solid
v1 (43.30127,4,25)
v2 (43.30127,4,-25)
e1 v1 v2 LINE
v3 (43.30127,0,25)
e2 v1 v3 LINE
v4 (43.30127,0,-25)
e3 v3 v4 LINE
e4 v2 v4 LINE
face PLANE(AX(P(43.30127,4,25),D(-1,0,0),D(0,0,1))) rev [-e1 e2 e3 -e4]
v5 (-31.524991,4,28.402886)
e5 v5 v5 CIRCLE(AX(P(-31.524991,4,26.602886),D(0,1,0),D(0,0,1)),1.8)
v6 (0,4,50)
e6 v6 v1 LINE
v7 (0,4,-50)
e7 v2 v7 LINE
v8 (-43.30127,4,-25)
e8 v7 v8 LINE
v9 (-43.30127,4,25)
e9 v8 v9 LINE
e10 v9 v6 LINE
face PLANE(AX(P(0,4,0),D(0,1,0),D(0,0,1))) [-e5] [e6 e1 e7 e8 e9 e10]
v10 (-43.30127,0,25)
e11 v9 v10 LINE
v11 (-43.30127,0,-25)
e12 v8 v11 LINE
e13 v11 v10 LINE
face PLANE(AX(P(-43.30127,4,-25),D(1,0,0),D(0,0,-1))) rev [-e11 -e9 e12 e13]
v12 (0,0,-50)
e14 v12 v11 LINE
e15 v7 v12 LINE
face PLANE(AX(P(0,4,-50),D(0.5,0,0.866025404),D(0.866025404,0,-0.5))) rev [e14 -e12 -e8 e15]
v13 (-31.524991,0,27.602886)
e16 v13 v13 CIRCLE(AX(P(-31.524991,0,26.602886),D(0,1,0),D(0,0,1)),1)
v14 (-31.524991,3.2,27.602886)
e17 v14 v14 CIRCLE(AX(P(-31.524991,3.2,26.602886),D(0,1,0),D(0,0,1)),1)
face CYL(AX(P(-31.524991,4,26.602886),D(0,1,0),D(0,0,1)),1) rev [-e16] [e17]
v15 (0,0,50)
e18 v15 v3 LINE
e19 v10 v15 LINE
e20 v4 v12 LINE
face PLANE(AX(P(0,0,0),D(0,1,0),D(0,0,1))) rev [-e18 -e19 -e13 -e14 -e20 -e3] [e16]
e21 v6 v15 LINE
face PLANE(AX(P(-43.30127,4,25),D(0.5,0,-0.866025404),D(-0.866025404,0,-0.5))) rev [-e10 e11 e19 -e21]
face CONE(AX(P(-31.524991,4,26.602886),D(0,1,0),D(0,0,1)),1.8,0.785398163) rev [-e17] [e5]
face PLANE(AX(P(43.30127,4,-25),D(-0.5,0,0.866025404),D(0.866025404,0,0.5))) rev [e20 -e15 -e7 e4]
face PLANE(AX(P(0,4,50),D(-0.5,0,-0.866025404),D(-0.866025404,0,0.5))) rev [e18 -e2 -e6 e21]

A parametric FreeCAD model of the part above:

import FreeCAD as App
import Part
import Sketcher
from FreeCAD import Vector
Q = App.Units.Quantity


def add_polygon(sketch, points):
    """Adds a closed chain of lines whose ends are joined by coincident constraints."""
    first, n = sketch.GeometryCount, len(points)
    for a, b in zip(points, points[1:] + points[:1]):
        sketch.addGeometry(Part.LineSegment(App.Vector(*a, 0), App.Vector(*b, 0)), False)
    for i in range(n):
        sketch.addConstraint(Sketcher.Constraint("Coincident", first + i, 2, first + (i + 1) % n, 1))

doc = App.newDocument("Part")
body = doc.addObject("PartDesign::Body", "Body")

# Sketch on XZ plane
sketch1 = body.newObject("Sketcher::SketchObject", "Sketch")
sketch1.AttachmentSupport = (doc.getObject("XZ_Plane"), [""])
sketch1.MapMode = "FlatFace"
add_polygon(sketch1, [(0, -50), (-43.30127, -25), (-43.30127, 25), (0, 50), (43.30127, 25), (43.30127, -25)])  # lines 0-5
sketch1.addConstraint(Sketcher.Constraint("Vertical", 1))
sketch1.addConstraint(Sketcher.Constraint("Vertical", 4))
sketch1.addConstraint(Sketcher.Constraint("Symmetric", 0, 2, 3, 2, -1, 1))
sketch1.addConstraint(Sketcher.Constraint("Symmetric", 2, 2, 5, 2, -1, 1))
sketch1.addConstraint(Sketcher.Constraint("PointOnObject", 2, 2, -2))
sketch1.addConstraint(Sketcher.Constraint("Parallel", 2, 5))
sketch1.addConstraint(Sketcher.Constraint("Horizontal", 1, 2, 3, 2))
sketch1.addConstraint(Sketcher.Constraint("DistanceY", 1, 1, 1, 2, Q("50 mm")))
sketch1.addConstraint(Sketcher.Constraint("Angle", 0, Q("150 deg")))
sketch1.addConstraint(Sketcher.Constraint("Distance", 0, Q("50 mm")))
pad1 = body.newObject("PartDesign::Pad", "Pad")
pad1.Profile = sketch1
pad1.Length = 4
pad1.Reversed = True

# Sketch on XZ plane
sketch2 = body.newObject("Sketcher::SketchObject", "Sketch001")
sketch2.AttachmentSupport = (doc.getObject("XZ_Plane"), [""])
sketch2.MapMode = "FlatFace"
sketch2.AttachmentOffset = App.Placement(Vector(0, 0, -4), App.Rotation())
sketch2.addGeometry(Part.Circle(Vector(-31.524991, 26.602886, 0), Vector(0, 0, 1), 1), False)
sketch2.addConstraint(Sketcher.Constraint("Diameter", 0, Q("2 mm")))
sketch2.addConstraint(Sketcher.Constraint("DistanceX", 0, 3, -1, 1, Q("31.524991 mm")))
sketch2.addConstraint(Sketcher.Constraint("DistanceY", -1, 1, 0, 3, Q("26.602886 mm")))
doc.recompute()
hole = body.newObject("PartDesign::Hole", "Hole")
hole.Profile = sketch2
hole.ThreadType = "None"
hole.Diameter = 2
hole.DepthType = "ThroughAll"
hole.HoleCutType = "Countersink"
hole.HoleCutDiameter = 3.6
hole.HoleCutCountersinkAngle = 90
hole.Reversed = True

doc.recompute()
